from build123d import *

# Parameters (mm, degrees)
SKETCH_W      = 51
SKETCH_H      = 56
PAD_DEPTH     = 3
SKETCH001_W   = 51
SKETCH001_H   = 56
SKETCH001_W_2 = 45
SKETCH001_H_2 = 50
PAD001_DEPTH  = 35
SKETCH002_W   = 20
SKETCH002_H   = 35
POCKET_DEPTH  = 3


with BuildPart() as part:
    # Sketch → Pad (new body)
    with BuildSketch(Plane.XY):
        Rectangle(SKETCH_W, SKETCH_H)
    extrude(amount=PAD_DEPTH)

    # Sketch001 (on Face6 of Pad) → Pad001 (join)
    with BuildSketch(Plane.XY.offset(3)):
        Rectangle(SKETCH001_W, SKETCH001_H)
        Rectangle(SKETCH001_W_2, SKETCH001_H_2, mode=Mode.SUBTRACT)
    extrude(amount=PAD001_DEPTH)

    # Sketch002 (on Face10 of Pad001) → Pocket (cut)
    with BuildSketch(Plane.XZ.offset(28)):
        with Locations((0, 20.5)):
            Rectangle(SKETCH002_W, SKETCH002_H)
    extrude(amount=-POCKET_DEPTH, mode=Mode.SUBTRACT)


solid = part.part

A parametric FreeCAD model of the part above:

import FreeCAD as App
import Part
import Sketcher
Q = App.Units.Quantity

doc = App.newDocument("Part")
params = doc.addObject("Spreadsheet::Sheet", "Params")
for row, (alias, value) in enumerate([
    ("sketch1_width", "51 mm"),
    ("sketch1_height", "56 mm"),
    ("pad1_length", "3 mm"),
    ("sketch2_width", "51 mm"),
    ("sketch2_width2", "45 mm"),
    ("sketch2_height", "56 mm"),
    ("sketch2_height2", "50 mm"),
    ("pad2_length", "35 mm"),
    ("sketch3_width", "20 mm"),
    ("sketch3_height", "35 mm"),
    ("pocket1_length", "3 mm"),
], start=1):
    params.set(f"A{row}", alias)
    params.set(f"B{row}", "=" + value)
    params.setAlias(f"B{row}", alias)

body = doc.addObject("PartDesign::Body", "Body")

# Sketch on XY plane
sketch1 = body.newObject("Sketcher::SketchObject", "Sketch")
sketch1.AttachmentSupport = (doc.getObject("XY_Plane"), [""])
sketch1.MapMode = "FlatFace"
sketch1.addGeometry(Part.LineSegment(App.Vector(-26, 28, 0), App.Vector(-26, -28, 0)), False)
sketch1.addGeometry(Part.LineSegment(App.Vector(-26, -28, 0), App.Vector(26, -28, 0)), False)
sketch1.addGeometry(Part.LineSegment(App.Vector(26, -28, 0), App.Vector(26, 28, 0)), False)
sketch1.addGeometry(Part.LineSegment(App.Vector(26, 28, 0), App.Vector(-26, 28, 0)), False)
sketch1.addConstraint(Sketcher.Constraint("Coincident", 0, 2, 1, 1))
sketch1.addConstraint(Sketcher.Constraint("Coincident", 1, 2, 2, 1))
sketch1.addConstraint(Sketcher.Constraint("Coincident", 2, 2, 3, 1))
sketch1.addConstraint(Sketcher.Constraint("Coincident", 3, 2, 0, 1))
sketch1.addConstraint(Sketcher.Constraint("Vertical", 0))
sketch1.addConstraint(Sketcher.Constraint("Horizontal", 1))
sketch1.addConstraint(Sketcher.Constraint("Vertical", 2))
sketch1.addConstraint(Sketcher.Constraint("Horizontal", 3))
sketch1.addConstraint(Sketcher.Constraint("Symmetric", 0, 2, 2, 2, -1, 1))
sketch1.addConstraint(Sketcher.Constraint("DistanceX", 1, 1, 1, 2, Q("51 mm")))
sketch1.addConstraint(Sketcher.Constraint("DistanceY", 0, 2, 0, 1, Q("56 mm")))
sketch1.setExpression("Constraints[9]", "Params.sketch1_width")
sketch1.setExpression("Constraints[10]", "Params.sketch1_height")
pad1 = body.newObject("PartDesign::Pad", "Pad")
pad1.Profile = sketch1
pad1.setExpression("Length", "Params.pad1_length")

# Sketch on XY plane
sketch2 = body.newObject("Sketcher::SketchObject", "Sketch001")
sketch2.AttachmentSupport = (doc.getObject("XY_Plane"), [""])
sketch2.MapMode = "FlatFace"
sketch2.AttachmentOffset = App.Placement(App.Vector(0, 0, 3), App.Rotation())
sketch2.addGeometry(Part.LineSegment(App.Vector(-26, 28, 0), App.Vector(-26, -28, 0)), False)
sketch2.addGeometry(Part.LineSegment(App.Vector(-26, -28, 0), App.Vector(26, -28, 0)), False)
sketch2.addGeometry(Part.LineSegment(App.Vector(26, -28, 0), App.Vector(26, 28, 0)), False)
sketch2.addGeometry(Part.LineSegment(App.Vector(26, 28, 0), App.Vector(-26, 28, 0)), False)
sketch2.addGeometry(Part.LineSegment(App.Vector(22, -25, 0), App.Vector(-22, -25, 0)), False)
sketch2.addGeometry(Part.LineSegment(App.Vector(-22, -25, 0), App.Vector(-22, 25, 0)), False)
sketch2.addGeometry(Part.LineSegment(App.Vector(-22, 25, 0), App.Vector(22, 25, 0)), False)
sketch2.addGeometry(Part.LineSegment(App.Vector(22, 25, 0), App.Vector(22, -25, 0)), False)
sketch2.addConstraint(Sketcher.Constraint("Coincident", 0, 2, 1, 1))
sketch2.addConstraint(Sketcher.Constraint("Coincident", 1, 2, 2, 1))
sketch2.addConstraint(Sketcher.Constraint("Coincident", 2, 2, 3, 1))
sketch2.addConstraint(Sketcher.Constraint("Coincident", 3, 2, 0, 1))
sketch2.addConstraint(Sketcher.Constraint("Coincident", 4, 2, 5, 1))
sketch2.addConstraint(Sketcher.Constraint("Coincident", 5, 2, 6, 1))
sketch2.addConstraint(Sketcher.Constraint("Coincident", 6, 2, 7, 1))
sketch2.addConstraint(Sketcher.Constraint("Coincident", 7, 2, 4, 1))
sketch2.addConstraint(Sketcher.Constraint("Vertical", 0))
sketch2.addConstraint(Sketcher.Constraint("Horizontal", 1))
sketch2.addConstraint(Sketcher.Constraint("Vertical", 2))
sketch2.addConstraint(Sketcher.Constraint("Horizontal", 3))
sketch2.addConstraint(Sketcher.Constraint("Horizontal", 4))
sketch2.addConstraint(Sketcher.Constraint("Vertical", 5))
sketch2.addConstraint(Sketcher.Constraint("Horizontal", 6))
sketch2.addConstraint(Sketcher.Constraint("Vertical", 7))
sketch2.addConstraint(Sketcher.Constraint("Symmetric", 0, 2, 2, 2, -1, 1))
sketch2.addConstraint(Sketcher.Constraint("Symmetric", 4, 2, 6, 2, -1, 1))
sketch2.addConstraint(Sketcher.Constraint("DistanceX", 1, 1, 1, 2, Q("51 mm")))
sketch2.addConstraint(Sketcher.Constraint("DistanceX", 4, 2, 4, 1, Q("45 mm")))
sketch2.addConstraint(Sketcher.Constraint("DistanceY", 0, 2, 0, 1, Q("56 mm")))
sketch2.addConstraint(Sketcher.Constraint("DistanceY", 5, 1, 5, 2, Q("50 mm")))
sketch2.setExpression("Constraints[18]", "Params.sketch2_width")
sketch2.setExpression("Constraints[19]", "Params.sketch2_width2")
sketch2.setExpression("Constraints[20]", "Params.sketch2_height")
sketch2.setExpression("Constraints[21]", "Params.sketch2_height2")
pad2 = body.newObject("PartDesign::Pad", "Pad001")
pad2.Profile = sketch2
pad2.setExpression("Length", "Params.pad2_length")

# Sketch on XZ plane
sketch3 = body.newObject("Sketcher::SketchObject", "Sketch002")
sketch3.AttachmentSupport = (doc.getObject("XZ_Plane"), [""])
sketch3.MapMode = "FlatFace"
sketch3.AttachmentOffset = App.Placement(App.Vector(0, 0, 28), App.Rotation())
sketch3.addGeometry(Part.LineSegment(App.Vector(-10, 38, 0), App.Vector(-10, 3, 0)), False)
sketch3.addGeometry(Part.LineSegment(App.Vector(-10, 3, 0), App.Vector(10, 3, 0)), False)
sketch3.addGeometry(Part.LineSegment(App.Vector(10, 3, 0), App.Vector(10, 38, 0)), False)
sketch3.addGeometry(Part.LineSegment(App.Vector(10, 38, 0), App.Vector(-10, 38, 0)), False)
sketch3.addConstraint(Sketcher.Constraint("Coincident", 0, 2, 1, 1))
sketch3.addConstraint(Sketcher.Constraint("Coincident", 1, 2, 2, 1))
sketch3.addConstraint(Sketcher.Constraint("Coincident", 2, 2, 3, 1))
sketch3.addConstraint(Sketcher.Constraint("Coincident", 3, 2, 0, 1))
sketch3.addConstraint(Sketcher.Constraint("Vertical", 0))
sketch3.addConstraint(Sketcher.Constraint("Horizontal", 1))
sketch3.addConstraint(Sketcher.Constraint("Vertical", 2))
sketch3.addConstraint(Sketcher.Constraint("Horizontal", 3))
sketch3.addConstraint(Sketcher.Constraint("DistanceX", 1, 1, 1, 2, Q("20 mm")))
sketch3.addConstraint(Sketcher.Constraint("DistanceY", 0, 2, 0, 1, Q("35 mm")))
sketch3.addConstraint(Sketcher.Constraint("DistanceX", 0, 2, -1, 1, Q("10 mm")))
sketch3.addConstraint(Sketcher.Constraint("DistanceY", -1, 1, 0, 2, Q("3 mm")))
sketch3.setExpression("Constraints[8]", "Params.sketch3_width")
sketch3.setExpression("Constraints[9]", "Params.sketch3_height")
pocket1 = body.newObject("PartDesign::Pocket", "Pocket")
pocket1.Profile = sketch3
pocket1.setExpression("Length", "Params.pocket1_length")

doc.recompute()
